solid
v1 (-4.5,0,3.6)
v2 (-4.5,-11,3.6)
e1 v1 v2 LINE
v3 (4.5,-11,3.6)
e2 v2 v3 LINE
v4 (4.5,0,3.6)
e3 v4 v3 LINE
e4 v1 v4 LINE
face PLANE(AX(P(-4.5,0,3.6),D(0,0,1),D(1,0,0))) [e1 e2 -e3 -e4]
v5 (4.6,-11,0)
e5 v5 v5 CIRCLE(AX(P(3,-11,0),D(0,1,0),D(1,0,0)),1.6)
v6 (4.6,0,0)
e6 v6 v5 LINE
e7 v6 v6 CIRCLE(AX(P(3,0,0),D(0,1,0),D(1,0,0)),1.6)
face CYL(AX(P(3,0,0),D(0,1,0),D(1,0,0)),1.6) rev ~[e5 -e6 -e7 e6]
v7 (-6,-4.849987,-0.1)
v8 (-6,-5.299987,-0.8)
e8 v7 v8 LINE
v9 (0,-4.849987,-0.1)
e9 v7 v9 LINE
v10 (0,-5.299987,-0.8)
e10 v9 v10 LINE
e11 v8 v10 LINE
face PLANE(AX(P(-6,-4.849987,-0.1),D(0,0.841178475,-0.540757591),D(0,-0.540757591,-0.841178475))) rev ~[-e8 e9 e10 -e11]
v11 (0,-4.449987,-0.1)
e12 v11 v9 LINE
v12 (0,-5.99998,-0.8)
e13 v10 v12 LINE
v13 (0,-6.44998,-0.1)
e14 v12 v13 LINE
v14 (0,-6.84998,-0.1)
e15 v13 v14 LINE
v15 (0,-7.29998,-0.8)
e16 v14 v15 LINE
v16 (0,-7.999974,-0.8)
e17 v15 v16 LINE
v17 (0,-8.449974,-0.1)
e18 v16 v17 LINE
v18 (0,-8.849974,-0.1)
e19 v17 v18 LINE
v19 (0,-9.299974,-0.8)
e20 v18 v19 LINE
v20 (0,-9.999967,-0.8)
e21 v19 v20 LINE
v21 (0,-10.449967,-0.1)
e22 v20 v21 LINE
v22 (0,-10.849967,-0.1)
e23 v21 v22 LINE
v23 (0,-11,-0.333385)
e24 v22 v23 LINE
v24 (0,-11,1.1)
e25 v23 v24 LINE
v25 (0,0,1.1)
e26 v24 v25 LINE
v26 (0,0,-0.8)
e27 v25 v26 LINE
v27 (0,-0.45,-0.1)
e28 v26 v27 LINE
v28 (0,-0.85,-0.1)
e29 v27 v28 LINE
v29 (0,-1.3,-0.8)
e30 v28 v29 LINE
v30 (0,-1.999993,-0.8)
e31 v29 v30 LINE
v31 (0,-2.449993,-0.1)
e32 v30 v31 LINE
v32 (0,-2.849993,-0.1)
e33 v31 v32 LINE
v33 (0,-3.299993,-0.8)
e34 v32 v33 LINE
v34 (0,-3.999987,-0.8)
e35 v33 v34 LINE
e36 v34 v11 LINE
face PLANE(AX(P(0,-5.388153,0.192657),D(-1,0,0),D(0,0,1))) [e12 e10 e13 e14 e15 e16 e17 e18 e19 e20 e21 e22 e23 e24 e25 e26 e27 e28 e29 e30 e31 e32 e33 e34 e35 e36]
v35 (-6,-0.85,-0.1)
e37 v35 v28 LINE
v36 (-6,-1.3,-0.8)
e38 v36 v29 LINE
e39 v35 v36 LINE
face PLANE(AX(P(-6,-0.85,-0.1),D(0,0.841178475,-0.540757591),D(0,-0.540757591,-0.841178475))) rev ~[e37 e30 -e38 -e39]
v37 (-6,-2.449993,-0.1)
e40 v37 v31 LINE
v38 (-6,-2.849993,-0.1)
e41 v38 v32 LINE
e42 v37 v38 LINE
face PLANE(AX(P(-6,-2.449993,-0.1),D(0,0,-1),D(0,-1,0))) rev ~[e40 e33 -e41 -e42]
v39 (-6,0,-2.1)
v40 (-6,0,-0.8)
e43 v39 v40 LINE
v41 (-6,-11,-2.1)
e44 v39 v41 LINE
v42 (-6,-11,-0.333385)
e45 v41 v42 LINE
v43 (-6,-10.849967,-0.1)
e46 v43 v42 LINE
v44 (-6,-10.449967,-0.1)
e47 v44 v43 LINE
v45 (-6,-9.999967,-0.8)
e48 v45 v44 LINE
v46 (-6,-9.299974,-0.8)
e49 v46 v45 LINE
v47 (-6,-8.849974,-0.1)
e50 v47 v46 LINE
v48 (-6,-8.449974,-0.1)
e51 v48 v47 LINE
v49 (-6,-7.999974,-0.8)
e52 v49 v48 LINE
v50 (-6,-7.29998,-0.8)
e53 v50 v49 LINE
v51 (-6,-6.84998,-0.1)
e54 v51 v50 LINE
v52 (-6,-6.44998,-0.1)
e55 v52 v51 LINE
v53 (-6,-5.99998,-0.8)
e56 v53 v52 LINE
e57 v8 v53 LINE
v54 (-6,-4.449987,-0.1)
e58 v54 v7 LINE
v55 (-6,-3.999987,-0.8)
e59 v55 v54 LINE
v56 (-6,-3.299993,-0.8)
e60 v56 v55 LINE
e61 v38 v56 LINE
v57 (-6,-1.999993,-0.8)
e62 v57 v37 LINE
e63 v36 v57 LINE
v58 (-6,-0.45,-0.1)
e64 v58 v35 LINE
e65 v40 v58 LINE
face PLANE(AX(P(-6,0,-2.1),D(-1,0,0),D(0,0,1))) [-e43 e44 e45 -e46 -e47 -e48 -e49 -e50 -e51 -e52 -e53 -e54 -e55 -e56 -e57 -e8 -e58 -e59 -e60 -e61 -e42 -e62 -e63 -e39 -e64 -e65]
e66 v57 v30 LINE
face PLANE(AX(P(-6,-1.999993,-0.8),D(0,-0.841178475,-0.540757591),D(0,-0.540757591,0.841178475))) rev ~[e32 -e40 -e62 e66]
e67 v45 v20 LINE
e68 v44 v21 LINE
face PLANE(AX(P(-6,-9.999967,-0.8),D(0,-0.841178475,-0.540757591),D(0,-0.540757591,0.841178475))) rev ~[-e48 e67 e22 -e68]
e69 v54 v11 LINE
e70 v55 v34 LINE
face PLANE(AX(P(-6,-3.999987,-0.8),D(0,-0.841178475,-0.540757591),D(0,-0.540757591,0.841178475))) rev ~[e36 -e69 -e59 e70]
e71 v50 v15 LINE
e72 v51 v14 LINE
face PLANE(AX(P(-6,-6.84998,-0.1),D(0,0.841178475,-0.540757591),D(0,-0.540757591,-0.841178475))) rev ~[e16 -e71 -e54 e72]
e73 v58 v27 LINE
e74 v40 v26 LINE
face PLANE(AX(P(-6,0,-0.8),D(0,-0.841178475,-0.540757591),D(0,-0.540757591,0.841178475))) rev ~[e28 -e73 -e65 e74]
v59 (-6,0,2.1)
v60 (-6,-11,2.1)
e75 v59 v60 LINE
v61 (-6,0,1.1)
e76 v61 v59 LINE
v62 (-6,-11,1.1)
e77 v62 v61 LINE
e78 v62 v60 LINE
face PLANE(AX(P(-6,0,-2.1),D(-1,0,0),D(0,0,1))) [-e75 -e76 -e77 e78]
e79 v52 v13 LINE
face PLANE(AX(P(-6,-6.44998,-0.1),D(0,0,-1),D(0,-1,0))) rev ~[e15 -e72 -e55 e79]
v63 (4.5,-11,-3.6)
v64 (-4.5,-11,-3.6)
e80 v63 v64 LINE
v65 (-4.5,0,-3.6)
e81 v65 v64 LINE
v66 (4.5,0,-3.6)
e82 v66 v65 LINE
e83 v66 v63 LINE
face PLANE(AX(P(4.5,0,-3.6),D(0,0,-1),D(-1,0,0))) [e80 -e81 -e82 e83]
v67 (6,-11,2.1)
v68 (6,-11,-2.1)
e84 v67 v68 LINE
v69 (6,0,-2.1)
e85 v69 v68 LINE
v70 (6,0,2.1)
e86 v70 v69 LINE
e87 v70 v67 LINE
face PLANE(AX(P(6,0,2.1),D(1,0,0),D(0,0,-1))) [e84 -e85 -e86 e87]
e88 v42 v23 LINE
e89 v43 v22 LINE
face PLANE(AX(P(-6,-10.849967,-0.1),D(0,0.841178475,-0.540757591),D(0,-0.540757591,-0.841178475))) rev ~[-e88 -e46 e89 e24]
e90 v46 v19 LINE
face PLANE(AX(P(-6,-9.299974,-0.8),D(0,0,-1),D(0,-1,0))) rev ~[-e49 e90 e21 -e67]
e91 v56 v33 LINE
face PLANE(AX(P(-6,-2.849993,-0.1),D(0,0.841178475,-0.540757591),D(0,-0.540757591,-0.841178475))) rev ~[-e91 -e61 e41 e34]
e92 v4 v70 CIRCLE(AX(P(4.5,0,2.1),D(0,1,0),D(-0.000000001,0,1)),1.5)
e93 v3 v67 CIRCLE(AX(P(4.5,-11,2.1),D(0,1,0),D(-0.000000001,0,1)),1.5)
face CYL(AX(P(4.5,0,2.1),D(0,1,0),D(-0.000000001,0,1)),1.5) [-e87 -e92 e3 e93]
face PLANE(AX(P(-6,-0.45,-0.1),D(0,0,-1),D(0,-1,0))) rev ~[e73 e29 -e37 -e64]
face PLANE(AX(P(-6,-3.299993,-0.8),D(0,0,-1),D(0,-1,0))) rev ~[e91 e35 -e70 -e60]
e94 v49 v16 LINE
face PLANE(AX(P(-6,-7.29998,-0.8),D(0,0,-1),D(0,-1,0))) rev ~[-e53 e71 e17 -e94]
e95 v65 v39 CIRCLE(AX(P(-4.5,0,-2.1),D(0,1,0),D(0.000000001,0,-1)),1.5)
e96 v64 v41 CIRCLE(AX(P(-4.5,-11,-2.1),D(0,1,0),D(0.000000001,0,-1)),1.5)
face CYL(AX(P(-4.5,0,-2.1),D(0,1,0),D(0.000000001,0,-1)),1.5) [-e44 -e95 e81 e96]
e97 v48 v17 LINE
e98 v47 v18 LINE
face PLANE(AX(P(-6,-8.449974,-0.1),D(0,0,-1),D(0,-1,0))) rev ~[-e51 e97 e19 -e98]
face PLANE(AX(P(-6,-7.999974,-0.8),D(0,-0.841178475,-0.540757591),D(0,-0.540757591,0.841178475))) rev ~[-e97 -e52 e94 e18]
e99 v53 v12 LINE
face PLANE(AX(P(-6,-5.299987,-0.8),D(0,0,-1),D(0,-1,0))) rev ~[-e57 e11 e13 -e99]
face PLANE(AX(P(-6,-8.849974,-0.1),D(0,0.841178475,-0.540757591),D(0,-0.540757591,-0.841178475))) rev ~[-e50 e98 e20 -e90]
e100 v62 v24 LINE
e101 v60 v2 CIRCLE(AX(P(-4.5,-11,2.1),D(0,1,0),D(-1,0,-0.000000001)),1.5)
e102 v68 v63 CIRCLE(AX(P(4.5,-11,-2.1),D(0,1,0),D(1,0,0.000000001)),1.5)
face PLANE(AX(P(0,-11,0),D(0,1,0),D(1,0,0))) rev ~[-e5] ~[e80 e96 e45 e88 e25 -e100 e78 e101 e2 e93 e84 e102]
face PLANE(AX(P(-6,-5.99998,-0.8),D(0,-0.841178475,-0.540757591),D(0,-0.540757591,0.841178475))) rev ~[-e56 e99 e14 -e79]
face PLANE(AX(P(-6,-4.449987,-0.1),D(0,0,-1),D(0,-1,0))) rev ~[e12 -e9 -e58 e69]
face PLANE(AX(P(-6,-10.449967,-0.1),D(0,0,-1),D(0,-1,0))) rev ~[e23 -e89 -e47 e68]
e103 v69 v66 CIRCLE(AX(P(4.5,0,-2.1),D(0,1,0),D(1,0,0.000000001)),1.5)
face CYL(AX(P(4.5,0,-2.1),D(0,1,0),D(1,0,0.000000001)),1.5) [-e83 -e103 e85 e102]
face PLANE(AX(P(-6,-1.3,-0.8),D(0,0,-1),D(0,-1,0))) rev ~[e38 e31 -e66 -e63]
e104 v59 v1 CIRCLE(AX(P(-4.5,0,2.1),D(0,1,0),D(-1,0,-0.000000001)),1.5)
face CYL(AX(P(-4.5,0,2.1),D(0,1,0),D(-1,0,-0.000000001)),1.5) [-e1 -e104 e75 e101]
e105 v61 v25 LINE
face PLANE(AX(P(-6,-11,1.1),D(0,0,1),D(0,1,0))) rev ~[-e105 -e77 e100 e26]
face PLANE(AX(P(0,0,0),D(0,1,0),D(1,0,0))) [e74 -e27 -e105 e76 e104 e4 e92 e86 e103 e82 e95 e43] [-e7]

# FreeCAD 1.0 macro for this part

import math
import FreeCAD as App
import Part
import Sketcher
from FreeCAD import Vector


def add_polygon(sketch, points):
    """Adds a closed chain of lines whose ends are joined by coincident constraints."""
    first, n = sketch.GeometryCount, len(points)
    for a, b in zip(points, points[1:] + points[:1]):
        sketch.addGeometry(Part.LineSegment(App.Vector(*a, 0), App.Vector(*b, 0)), False)
    for i in range(n):
        sketch.addConstraint(Sketcher.Constraint("Coincident", first + i, 2, first + (i + 1) % n, 1))

doc = App.newDocument("Part")
body = doc.addObject("PartDesign::Body", "Body")

# Sketch on XZ plane
sketch1 = body.newObject("Sketcher::SketchObject", "Sketch")
sketch1.AttachmentSupport = (doc.getObject("XZ_Plane"), [""])
sketch1.MapMode = "FlatFace"
sketch1.addGeometry(Part.LineSegment(Vector(-4.5, 3.6, 0), Vector(4.5, 3.6, 0)), False)
sketch1.addGeometry(Part.ArcOfCircle(Part.Circle(Vector(4.5, 2.1, 0), Vector(0, 0, 1), 1.5), math.radians(0), math.radians(90)), False)
sketch1.addGeometry(Part.LineSegment(Vector(6, 2.1, 0), Vector(6, -2.1, 0)), False)
sketch1.addGeometry(Part.ArcOfCircle(Part.Circle(Vector(4.5, -2.1, 0), Vector(0, 0, 1), 1.5), math.radians(-90), math.radians(0)), False)
sketch1.addGeometry(Part.LineSegment(Vector(4.5, -3.6, 0), Vector(-4.5, -3.6, 0)), False)
sketch1.addGeometry(Part.ArcOfCircle(Part.Circle(Vector(-4.5, -2.1, 0), Vector(0, 0, 1), 1.5), math.radians(180), math.radians(270)), False)
sketch1.addGeometry(Part.LineSegment(Vector(-6, -2.1, 0), Vector(-6, 2.1, 0)), False)
sketch1.addGeometry(Part.ArcOfCircle(Part.Circle(Vector(-4.5, 2.1, 0), Vector(0, 0, 1), 1.5), math.radians(90), math.radians(180)), False)
sketch1.addGeometry(Part.Circle(Vector(3, 0, 0), Vector(0, 0, 1), 1.6), False)
sketch1.addConstraint(Sketcher.Constraint("Tangent", 0, 2, 1, 2))
sketch1.addConstraint(Sketcher.Constraint("Tangent", 1, 1, 2, 1))
sketch1.addConstraint(Sketcher.Constraint("Tangent", 2, 2, 3, 2))
sketch1.addConstraint(Sketcher.Constraint("Tangent", 3, 1, 4, 1))
sketch1.addConstraint(Sketcher.Constraint("Tangent", 4, 2, 5, 2))
sketch1.addConstraint(Sketcher.Constraint("Tangent", 5, 1, 6, 1))
sketch1.addConstraint(Sketcher.Constraint("Tangent", 6, 2, 7, 2))
sketch1.addConstraint(Sketcher.Constraint("Tangent", 7, 1, 0, 1))
sketch1.addConstraint(Sketcher.Constraint("Horizontal", 0))
sketch1.addConstraint(Sketcher.Constraint("Vertical", 2))
sketch1.addConstraint(Sketcher.Constraint("Horizontal", 4))
sketch1.addConstraint(Sketcher.Constraint("Vertical", 6))
sketch1.addConstraint(Sketcher.Constraint("Equal", 1, 3))
sketch1.addConstraint(Sketcher.Constraint("Equal", 3, 5))
sketch1.addConstraint(Sketcher.Constraint("Equal", 5, 7))
sketch1.addConstraint(Sketcher.Constraint("Symmetric", 1, 3, 5, 3, -1, 1))
sketch1.addConstraint(Sketcher.Constraint("PointOnObject", 8, 3, -1))
sketch1.addConstraint(Sketcher.Constraint("Diameter", 8, 3.2))
sketch1.addConstraint(Sketcher.Constraint("Radius", 1, 1.5))
sketch1.addConstraint(Sketcher.Constraint("DistanceX", 0, 1, 0, 2, 9.0))
sketch1.addConstraint(Sketcher.Constraint("DistanceY", 2, 2, 2, 1, 4.2))
sketch1.addConstraint(Sketcher.Constraint("DistanceX", -1, 1, 8, 3, 3.0))
pad1 = body.newObject("PartDesign::Pad", "Pad")
pad1.Profile = sketch1
pad1.Length = 11

# Sketch on YZ plane
sketch2 = body.newObject("Sketcher::SketchObject", "Sketch001")
sketch2.AttachmentSupport = (doc.getObject("YZ_Plane"), [""])
sketch2.MapMode = "FlatFace"
sketch2.AttachmentOffset = App.Placement(Vector(0, 0, -6), App.Rotation())
add_polygon(sketch2, [(-11, -0.333385), (-11, 1.1), (0, 1.1), (0, -0.8), (-0.45, -0.1), (-0.85, -0.1), (-1.3, -0.8), (-1.999993, -0.8), (-2.449993, -0.1), (-2.849993, -0.1), (-3.299993, -0.8), (-3.999987, -0.8), (-4.449987, -0.1), (-4.849987, -0.1), (-5.299987, -0.8), (-5.99998, -0.8), (-6.44998, -0.1), (-6.84998, -0.1), (-7.29998, -0.8), (-7.999974, -0.8), (-8.449974, -0.1), (-8.849974, -0.1), (-9.299974, -0.8), (-9.999967, -0.8), (-10.449967, -0.1), (-10.849967, -0.1)])  # lines 0-25
sketch2.addConstraint(Sketcher.Constraint("Vertical", 0))
sketch2.addConstraint(Sketcher.Constraint("Horizontal", 1))
sketch2.addConstraint(Sketcher.Constraint("Vertical", 2))
sketch2.addConstraint(Sketcher.Constraint("Horizontal", 4))
sketch2.addConstraint(Sketcher.Constraint("Horizontal", 6))
sketch2.addConstraint(Sketcher.Constraint("Horizontal", 8))
sketch2.addConstraint(Sketcher.Constraint("Horizontal", 10))
sketch2.addConstraint(Sketcher.Constraint("Horizontal", 12))
sketch2.addConstraint(Sketcher.Constraint("Horizontal", 14))
sketch2.addConstraint(Sketcher.Constraint("Horizontal", 16))
sketch2.addConstraint(Sketcher.Constraint("Horizontal", 18))
sketch2.addConstraint(Sketcher.Constraint("Horizontal", 20))
sketch2.addConstraint(Sketcher.Constraint("Horizontal", 22))
sketch2.addConstraint(Sketcher.Constraint("Horizontal", 24))
sketch2.addConstraint(Sketcher.Constraint("PointOnObject", 1, 2, -2))
sketch2.addConstraint(Sketcher.Constraint("Parallel", 3, 7))
sketch2.addConstraint(Sketcher.Constraint("Parallel", 5, 9))
sketch2.addConstraint(Sketcher.Constraint("Parallel", 7, 11))
sketch2.addConstraint(Sketcher.Constraint("Parallel", 9, 13))
sketch2.addConstraint(Sketcher.Constraint("Parallel", 11, 15))
sketch2.addConstraint(Sketcher.Constraint("Parallel", 13, 17))
sketch2.addConstraint(Sketcher.Constraint("Parallel", 15, 19))
sketch2.addConstraint(Sketcher.Constraint("Parallel", 17, 21))
sketch2.addConstraint(Sketcher.Constraint("Parallel", 19, 23))
sketch2.addConstraint(Sketcher.Constraint("Parallel", 21, 25))
sketch2.addConstraint(Sketcher.Constraint("Horizontal", 2, 2, 5, 2))
sketch2.addConstraint(Sketcher.Constraint("Horizontal", 4, 2, 7, 2))
sketch2.addConstraint(Sketcher.Constraint("Horizontal", 6, 2, 9, 2))
sketch2.addConstraint(Sketcher.Constraint("Horizontal", 8, 2, 11, 2))
sketch2.addConstraint(Sketcher.Constraint("Horizontal", 10, 2, 13, 2))
sketch2.addConstraint(Sketcher.Constraint("Horizontal", 12, 2, 15, 2))
sketch2.addConstraint(Sketcher.Constraint("Horizontal", 14, 2, 17, 2))
sketch2.addConstraint(Sketcher.Constraint("Horizontal", 16, 2, 19, 2))
sketch2.addConstraint(Sketcher.Constraint("Horizontal", 18, 2, 21, 2))
sketch2.addConstraint(Sketcher.Constraint("Horizontal", 20, 2, 23, 2))
sketch2.addConstraint(Sketcher.Constraint("Equal", 4, 8))
sketch2.addConstraint(Sketcher.Constraint("Equal", 6, 10))
sketch2.addConstraint(Sketcher.Constraint("Equal", 8, 12))
sketch2.addConstraint(Sketcher.Constraint("Equal", 10, 14))
sketch2.addConstraint(Sketcher.Constraint("Equal", 12, 16))
sketch2.addConstraint(Sketcher.Constraint("Equal", 14, 18))
sketch2.addConstraint(Sketcher.Constraint("Equal", 16, 20))
sketch2.addConstraint(Sketcher.Constraint("Equal", 18, 22))
sketch2.addConstraint(Sketcher.Constraint("Equal", 20, 24))
sketch2.addConstraint(Sketcher.Constraint("Equal", 3, 5))
sketch2.addConstraint(Sketcher.Constraint("DistanceX", 1, 1, 1, 2, 11.0))
sketch2.addConstraint(Sketcher.Constraint("DistanceX", 4, 2, 4, 1, 0.4))
sketch2.addConstraint(Sketcher.Constraint("DistanceY", 2, 2, 2, 1, 1.9))
sketch2.addConstraint(Sketcher.Constraint("DistanceY", -1, 1, 0, 2, 1.1))
sketch2.addConstraint(Sketcher.Constraint("DistanceY", 3, 2, -1, 1, 0.1))
sketch2.addConstraint(Sketcher.Constraint("DistanceX", 5, 2, -1, 1, 1.3))
sketch2.addConstraint(Sketcher.Constraint("Distance", 25, 0.27745))
pocket1 = body.newObject("PartDesign::Pocket", "Pocket")
pocket1.Profile = sketch2
pocket1.Length = 6
pocket1.Reversed = True

doc.recompute()
